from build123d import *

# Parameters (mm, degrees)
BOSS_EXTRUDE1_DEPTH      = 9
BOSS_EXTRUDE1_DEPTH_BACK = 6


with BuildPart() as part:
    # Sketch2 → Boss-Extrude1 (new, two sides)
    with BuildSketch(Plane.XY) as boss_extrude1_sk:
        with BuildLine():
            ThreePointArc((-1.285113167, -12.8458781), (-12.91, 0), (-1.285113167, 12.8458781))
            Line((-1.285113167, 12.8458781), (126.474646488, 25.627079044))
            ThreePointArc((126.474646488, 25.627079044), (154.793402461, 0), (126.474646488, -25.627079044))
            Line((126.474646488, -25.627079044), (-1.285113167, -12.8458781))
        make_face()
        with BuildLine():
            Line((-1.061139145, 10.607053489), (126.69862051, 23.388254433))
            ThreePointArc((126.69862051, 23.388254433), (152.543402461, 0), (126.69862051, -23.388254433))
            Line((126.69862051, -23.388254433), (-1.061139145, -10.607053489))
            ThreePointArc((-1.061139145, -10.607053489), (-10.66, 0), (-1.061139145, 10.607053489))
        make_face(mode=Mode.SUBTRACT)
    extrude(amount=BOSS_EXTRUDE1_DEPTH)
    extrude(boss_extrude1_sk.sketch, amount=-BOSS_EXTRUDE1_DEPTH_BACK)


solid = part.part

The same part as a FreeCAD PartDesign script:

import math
import FreeCAD as App
import Part
import Sketcher
from FreeCAD import Vector

doc = App.newDocument("Part")
body = doc.addObject("PartDesign::Body", "Body")

sketch1 = body.newObject("Sketcher::SketchObject", "Sketch")
sketch1.AttachmentSupport = (doc.getObject("XY_Plane"), [""])
sketch1.MapMode = "FlatFace"
sketch1.addGeometry([
    Part.ArcOfCircle(Part.Circle(Vector(0, 0, 0), Vector(0, 0, 1), 12.91), math.radians(95.712913), math.radians(264.287087)),
    Part.LineSegment(Vector(-1.285113, -12.845878, 0), Vector(126.474646, -25.627079, 0)),
    Part.ArcOfCircle(Part.Circle(Vector(129.038402, 0, 0), Vector(0, 0, 1), 25.755), math.radians(-95.712913), math.radians(95.712913)),
    Part.LineSegment(Vector(126.474646, 25.627079, 0), Vector(-1.285113, 12.845878, 0)),
    Part.LineSegment(Vector(-1.061139, 10.607053, 0), Vector(126.698621, 23.388254, 0)),
    Part.ArcOfCircle(Part.Circle(Vector(129.038402, 0, 0), Vector(0, 0, 1), 23.505), math.radians(-95.712913), math.radians(95.712913)),
    Part.LineSegment(Vector(126.698621, -23.388254, 0), Vector(-1.061139, -10.607053, 0)),
    Part.ArcOfCircle(Part.Circle(Vector(0, 0, 0), Vector(0, 0, 1), 10.66), math.radians(95.712913), math.radians(264.287087)),
], False)
sketch1.addConstraint([
    Sketcher.Constraint("Tangent", 0, 2, 1, 1),
    Sketcher.Constraint("Tangent", 1, 2, 2, 1),
    Sketcher.Constraint("Tangent", 2, 2, 3, 1),
    Sketcher.Constraint("Tangent", 3, 2, 0, 1),
    Sketcher.Constraint("Tangent", 4, 2, 5, 2),
    Sketcher.Constraint("Tangent", 5, 1, 6, 1),
    Sketcher.Constraint("Tangent", 6, 2, 7, 2),
    Sketcher.Constraint("Tangent", 7, 1, 4, 1),
    Sketcher.Constraint("Coincident", 0, 3, -1, 1),
    Sketcher.Constraint("Coincident", 7, 3, -1, 1),
    Sketcher.Constraint("Coincident", 5, 3, 2, 3),
    Sketcher.Constraint("PointOnObject", 2, 3, -1),
    Sketcher.Constraint("Parallel", 3, 4),
    Sketcher.Constraint("Radius", 0, 12.91),
    Sketcher.Constraint("Radius", 7, 10.66),
    Sketcher.Constraint("Radius", 2, 25.755),
    Sketcher.Constraint("Distance", 1, 128.397489),
])
pad1 = body.newObject("PartDesign::Pad", "Pad")
pad1.Profile = sketch1
pad1.Type = "TwoLengths"
pad1.Length = 9
pad1.Length2 = 6

doc.recompute()
